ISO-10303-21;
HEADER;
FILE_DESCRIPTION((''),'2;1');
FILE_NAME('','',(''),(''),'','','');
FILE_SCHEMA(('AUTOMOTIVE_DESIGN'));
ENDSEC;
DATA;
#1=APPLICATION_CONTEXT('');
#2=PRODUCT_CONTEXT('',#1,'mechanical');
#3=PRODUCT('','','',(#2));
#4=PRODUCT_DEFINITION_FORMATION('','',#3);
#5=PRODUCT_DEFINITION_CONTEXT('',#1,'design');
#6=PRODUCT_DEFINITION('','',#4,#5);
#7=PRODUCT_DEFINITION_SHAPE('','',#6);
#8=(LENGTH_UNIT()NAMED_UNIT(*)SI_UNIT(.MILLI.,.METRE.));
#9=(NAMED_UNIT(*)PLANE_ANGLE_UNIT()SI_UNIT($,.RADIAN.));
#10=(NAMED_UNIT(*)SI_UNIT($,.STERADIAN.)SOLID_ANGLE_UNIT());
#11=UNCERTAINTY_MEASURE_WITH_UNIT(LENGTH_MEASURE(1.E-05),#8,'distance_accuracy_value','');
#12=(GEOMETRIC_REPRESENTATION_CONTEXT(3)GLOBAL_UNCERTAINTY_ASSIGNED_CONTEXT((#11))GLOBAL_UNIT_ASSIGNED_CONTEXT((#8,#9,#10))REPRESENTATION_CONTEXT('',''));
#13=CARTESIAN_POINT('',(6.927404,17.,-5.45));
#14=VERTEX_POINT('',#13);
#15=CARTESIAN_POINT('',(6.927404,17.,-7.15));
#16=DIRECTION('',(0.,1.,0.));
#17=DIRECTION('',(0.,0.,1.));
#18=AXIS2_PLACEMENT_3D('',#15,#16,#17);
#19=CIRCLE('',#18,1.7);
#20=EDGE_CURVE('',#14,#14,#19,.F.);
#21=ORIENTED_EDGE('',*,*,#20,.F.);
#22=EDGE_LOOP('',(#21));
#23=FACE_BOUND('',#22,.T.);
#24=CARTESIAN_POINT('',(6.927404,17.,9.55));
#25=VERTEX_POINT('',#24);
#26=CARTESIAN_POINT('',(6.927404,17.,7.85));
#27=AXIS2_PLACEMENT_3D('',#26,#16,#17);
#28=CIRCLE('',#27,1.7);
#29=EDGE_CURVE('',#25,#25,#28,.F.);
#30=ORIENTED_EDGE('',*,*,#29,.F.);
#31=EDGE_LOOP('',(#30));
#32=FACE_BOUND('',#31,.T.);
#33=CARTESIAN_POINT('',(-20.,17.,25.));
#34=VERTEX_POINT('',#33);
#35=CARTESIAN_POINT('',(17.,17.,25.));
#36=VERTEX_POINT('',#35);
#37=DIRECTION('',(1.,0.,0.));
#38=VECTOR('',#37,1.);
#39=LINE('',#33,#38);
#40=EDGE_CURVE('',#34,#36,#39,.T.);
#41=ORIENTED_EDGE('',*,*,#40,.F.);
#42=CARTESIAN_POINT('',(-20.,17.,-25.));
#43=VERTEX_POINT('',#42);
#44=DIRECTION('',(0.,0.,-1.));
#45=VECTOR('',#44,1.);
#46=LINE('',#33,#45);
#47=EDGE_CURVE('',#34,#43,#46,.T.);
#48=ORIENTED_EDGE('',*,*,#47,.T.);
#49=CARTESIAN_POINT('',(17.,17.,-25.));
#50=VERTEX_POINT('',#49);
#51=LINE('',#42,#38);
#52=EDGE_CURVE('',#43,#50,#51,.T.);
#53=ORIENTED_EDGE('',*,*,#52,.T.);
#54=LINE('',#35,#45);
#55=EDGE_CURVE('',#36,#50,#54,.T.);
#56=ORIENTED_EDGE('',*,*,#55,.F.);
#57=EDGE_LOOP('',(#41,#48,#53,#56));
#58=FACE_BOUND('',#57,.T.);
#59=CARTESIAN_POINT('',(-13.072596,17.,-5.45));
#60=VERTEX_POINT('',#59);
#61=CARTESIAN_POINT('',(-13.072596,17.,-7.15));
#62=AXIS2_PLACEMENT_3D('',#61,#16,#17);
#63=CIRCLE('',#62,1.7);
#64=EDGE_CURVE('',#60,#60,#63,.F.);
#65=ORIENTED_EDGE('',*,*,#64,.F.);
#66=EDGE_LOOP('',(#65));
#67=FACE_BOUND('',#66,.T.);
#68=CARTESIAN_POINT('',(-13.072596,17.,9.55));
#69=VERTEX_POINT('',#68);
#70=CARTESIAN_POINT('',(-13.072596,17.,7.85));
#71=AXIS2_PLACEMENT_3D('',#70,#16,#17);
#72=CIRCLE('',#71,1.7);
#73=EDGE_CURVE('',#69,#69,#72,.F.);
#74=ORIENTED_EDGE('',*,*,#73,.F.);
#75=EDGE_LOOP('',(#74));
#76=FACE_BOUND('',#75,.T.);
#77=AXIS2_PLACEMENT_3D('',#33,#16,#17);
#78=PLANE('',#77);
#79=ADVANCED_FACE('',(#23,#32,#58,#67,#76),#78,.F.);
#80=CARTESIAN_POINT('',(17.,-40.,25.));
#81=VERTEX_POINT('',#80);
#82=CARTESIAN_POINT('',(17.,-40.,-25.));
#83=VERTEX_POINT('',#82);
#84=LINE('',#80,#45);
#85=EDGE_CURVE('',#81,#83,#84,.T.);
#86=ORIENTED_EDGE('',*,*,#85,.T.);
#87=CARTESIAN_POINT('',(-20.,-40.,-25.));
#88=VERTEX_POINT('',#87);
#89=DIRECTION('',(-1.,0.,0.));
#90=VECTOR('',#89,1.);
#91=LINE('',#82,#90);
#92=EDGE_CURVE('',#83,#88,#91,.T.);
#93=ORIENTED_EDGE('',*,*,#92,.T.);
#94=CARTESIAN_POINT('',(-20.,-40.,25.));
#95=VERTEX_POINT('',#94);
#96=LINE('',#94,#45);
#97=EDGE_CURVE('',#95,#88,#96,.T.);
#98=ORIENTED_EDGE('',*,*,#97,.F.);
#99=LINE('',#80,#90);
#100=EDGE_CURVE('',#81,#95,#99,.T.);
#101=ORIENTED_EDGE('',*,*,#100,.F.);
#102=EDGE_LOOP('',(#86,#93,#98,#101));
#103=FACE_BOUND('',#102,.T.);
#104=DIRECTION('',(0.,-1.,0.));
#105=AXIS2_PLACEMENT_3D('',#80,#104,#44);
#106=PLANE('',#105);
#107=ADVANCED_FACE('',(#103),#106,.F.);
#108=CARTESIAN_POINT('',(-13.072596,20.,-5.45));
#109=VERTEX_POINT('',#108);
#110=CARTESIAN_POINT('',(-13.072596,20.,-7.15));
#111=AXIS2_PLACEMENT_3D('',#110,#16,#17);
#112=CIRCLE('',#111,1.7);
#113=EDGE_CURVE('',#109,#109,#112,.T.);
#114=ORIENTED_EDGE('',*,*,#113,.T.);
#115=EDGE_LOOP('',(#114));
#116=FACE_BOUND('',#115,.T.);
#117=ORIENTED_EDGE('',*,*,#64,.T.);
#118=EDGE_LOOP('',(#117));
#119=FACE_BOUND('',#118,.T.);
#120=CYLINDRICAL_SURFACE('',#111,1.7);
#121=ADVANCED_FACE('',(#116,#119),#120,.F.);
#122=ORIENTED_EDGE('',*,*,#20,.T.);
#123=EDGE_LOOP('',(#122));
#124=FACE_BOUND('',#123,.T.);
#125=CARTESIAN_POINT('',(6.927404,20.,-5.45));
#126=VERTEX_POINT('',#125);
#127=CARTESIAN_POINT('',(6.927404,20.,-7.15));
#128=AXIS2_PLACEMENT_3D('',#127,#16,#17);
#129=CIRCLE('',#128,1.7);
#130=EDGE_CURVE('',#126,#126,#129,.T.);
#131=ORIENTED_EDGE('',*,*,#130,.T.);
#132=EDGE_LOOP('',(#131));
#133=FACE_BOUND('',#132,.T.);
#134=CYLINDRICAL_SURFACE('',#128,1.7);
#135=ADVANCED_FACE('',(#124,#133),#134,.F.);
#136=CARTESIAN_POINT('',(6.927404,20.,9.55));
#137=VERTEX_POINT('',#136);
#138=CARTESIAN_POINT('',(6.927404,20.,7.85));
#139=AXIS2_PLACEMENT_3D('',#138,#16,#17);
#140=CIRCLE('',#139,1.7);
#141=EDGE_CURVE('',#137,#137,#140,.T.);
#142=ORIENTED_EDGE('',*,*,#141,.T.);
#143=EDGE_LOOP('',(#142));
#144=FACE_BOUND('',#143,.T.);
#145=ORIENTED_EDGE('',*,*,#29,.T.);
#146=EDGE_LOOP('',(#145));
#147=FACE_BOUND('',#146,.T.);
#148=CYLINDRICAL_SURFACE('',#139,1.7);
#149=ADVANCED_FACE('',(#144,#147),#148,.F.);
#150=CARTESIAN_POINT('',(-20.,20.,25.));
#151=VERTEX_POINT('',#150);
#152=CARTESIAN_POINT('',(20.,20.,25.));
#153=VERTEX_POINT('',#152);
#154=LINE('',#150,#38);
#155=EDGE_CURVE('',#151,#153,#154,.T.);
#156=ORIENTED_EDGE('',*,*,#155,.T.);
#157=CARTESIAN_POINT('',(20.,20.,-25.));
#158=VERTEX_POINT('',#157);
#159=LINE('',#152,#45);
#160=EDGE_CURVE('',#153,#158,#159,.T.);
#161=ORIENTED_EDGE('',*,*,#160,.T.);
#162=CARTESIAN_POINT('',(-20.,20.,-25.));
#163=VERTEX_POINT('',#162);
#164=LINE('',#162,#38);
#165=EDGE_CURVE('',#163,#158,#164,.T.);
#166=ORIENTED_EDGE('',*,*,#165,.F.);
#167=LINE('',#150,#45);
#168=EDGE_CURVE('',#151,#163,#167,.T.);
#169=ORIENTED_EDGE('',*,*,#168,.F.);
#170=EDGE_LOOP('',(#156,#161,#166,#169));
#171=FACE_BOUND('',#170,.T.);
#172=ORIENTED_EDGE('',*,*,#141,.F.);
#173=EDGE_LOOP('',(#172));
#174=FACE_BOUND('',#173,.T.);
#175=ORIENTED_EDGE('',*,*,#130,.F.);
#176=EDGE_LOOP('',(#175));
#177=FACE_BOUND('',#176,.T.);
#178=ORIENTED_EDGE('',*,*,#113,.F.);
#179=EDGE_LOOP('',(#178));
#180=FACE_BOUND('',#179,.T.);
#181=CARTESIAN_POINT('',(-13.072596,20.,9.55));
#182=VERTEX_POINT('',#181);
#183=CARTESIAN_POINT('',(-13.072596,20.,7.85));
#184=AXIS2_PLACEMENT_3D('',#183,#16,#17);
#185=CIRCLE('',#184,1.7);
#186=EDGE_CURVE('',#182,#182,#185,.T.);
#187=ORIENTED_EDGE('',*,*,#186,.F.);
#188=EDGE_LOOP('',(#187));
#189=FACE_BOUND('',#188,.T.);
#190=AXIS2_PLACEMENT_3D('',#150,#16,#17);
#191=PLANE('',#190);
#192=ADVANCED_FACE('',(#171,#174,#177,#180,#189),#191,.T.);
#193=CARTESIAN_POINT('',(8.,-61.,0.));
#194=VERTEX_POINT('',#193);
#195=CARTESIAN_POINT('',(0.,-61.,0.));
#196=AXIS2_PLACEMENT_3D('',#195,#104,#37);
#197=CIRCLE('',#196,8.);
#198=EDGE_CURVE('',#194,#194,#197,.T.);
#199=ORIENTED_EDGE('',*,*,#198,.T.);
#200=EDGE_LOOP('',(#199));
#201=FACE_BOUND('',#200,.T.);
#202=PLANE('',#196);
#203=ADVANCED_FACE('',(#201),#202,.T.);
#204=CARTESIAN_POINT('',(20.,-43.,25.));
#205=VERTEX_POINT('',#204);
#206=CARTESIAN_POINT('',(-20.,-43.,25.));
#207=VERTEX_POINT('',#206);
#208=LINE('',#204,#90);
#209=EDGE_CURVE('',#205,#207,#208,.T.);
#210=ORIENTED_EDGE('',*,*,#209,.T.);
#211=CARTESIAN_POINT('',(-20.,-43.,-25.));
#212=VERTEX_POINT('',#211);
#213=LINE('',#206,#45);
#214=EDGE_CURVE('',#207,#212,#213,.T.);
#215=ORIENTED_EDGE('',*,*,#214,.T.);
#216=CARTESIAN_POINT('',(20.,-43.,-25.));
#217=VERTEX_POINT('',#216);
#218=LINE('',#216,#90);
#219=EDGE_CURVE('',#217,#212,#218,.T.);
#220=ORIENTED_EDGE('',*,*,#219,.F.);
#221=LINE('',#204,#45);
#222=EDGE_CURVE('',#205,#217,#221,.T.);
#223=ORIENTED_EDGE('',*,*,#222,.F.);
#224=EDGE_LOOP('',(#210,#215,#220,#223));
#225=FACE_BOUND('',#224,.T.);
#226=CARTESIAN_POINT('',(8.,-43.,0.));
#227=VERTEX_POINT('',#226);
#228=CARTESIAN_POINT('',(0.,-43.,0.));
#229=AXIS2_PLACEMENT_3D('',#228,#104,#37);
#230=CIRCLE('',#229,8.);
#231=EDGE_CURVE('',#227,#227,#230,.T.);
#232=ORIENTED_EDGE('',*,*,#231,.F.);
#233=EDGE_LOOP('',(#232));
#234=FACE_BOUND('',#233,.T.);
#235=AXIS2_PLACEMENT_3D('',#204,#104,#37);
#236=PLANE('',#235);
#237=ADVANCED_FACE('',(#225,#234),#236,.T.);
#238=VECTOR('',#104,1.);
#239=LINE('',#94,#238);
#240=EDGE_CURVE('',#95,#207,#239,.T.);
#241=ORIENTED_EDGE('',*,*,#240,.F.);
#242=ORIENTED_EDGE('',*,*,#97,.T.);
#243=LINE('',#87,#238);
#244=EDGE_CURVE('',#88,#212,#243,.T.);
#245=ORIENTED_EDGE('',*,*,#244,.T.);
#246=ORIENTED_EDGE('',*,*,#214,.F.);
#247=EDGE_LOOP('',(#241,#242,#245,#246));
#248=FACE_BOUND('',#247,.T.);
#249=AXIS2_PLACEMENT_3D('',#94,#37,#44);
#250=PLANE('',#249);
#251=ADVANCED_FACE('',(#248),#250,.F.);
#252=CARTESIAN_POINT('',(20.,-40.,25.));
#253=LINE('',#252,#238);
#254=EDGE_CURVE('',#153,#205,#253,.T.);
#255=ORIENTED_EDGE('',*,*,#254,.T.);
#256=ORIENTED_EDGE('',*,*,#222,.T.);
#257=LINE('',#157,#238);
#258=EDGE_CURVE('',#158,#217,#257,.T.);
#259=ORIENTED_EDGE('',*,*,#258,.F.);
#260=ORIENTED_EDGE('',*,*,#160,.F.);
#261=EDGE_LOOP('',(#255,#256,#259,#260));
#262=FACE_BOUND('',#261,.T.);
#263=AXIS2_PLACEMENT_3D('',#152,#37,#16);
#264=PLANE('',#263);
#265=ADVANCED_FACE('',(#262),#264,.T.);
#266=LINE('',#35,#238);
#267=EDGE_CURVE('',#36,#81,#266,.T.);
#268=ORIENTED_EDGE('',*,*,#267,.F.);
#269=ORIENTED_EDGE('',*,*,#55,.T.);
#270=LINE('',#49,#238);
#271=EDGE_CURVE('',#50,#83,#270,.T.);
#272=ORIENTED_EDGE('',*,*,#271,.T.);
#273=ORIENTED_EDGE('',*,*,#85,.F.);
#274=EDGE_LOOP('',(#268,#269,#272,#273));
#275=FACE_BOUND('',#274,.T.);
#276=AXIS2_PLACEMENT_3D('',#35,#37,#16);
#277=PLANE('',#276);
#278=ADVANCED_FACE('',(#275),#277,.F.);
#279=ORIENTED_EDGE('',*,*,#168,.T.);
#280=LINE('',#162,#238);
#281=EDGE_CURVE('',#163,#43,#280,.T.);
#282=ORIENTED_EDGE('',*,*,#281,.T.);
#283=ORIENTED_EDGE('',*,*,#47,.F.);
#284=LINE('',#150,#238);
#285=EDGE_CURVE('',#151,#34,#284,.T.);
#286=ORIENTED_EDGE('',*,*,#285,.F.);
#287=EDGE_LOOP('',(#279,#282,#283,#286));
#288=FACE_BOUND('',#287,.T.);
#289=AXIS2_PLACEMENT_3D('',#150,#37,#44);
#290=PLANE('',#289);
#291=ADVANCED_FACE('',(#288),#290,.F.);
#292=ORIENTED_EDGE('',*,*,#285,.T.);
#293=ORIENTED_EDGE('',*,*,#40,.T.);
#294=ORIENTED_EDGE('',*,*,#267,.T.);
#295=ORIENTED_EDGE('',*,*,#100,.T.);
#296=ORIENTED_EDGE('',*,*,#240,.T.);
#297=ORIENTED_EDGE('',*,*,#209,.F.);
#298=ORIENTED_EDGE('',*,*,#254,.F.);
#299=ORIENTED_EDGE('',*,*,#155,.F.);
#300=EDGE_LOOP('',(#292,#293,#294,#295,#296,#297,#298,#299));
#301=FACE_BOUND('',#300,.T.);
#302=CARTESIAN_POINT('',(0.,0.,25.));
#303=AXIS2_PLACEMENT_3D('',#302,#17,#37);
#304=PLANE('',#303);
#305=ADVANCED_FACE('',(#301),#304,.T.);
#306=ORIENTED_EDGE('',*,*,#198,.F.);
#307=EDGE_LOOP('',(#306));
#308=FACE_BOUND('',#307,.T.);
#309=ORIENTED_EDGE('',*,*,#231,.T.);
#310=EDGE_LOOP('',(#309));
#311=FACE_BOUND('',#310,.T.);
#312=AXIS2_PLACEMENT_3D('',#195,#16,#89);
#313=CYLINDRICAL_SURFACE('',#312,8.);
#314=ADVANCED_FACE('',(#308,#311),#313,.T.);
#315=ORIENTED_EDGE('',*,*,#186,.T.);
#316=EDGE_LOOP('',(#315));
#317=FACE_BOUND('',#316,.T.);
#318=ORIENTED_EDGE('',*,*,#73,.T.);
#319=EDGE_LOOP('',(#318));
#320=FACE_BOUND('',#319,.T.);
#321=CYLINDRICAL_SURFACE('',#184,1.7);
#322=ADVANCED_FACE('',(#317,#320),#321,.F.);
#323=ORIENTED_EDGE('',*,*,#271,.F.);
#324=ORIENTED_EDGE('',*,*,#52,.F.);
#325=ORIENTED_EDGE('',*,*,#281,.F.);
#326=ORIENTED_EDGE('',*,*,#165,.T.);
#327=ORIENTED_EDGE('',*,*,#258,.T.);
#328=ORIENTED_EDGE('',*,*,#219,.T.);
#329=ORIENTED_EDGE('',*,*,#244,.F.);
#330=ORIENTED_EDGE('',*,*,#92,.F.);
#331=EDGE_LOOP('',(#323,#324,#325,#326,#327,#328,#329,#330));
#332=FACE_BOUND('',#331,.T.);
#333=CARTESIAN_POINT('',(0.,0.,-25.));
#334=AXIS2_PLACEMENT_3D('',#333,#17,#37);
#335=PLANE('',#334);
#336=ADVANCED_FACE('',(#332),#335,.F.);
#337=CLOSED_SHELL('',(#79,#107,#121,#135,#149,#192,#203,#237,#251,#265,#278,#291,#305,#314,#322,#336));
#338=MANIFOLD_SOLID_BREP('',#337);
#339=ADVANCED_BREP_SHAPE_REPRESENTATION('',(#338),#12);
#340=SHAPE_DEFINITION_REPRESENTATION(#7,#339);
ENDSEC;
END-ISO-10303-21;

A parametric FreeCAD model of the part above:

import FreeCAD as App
import Part
import Sketcher
Q = App.Units.Quantity

doc = App.newDocument("Part")
params = doc.addObject("Spreadsheet::Sheet", "Params")
for row, (alias, value) in enumerate([
    ("sketch1_width", "40 mm"),
    ("sketch1_width2", "37 mm"),
    ("sketch1_height", "3 mm"),
    ("sketch1_height2", "57 mm"),
    ("pad1_length", "50 mm"),
    ("sketch2_diameter", "16 mm"),
    ("pad2_length", "18 mm"),
    ("sketch3_diameter", "3.4 mm"),
    ("sketch4_diameter", "3.4 mm"),
    ("sketch5_diameter", "3.4 mm"),
    ("sketch6_diameter", "3.4 mm"),
], start=1):
    params.set(f"A{row}", alias)
    params.set(f"B{row}", "=" + value)
    params.setAlias(f"B{row}", alias)

body = doc.addObject("PartDesign::Body", "Body")

# Sketch on XY plane
sketch1 = doc.addObject("Sketcher::SketchObject", "Sketch")
body.addObject(sketch1)
sketch1.AttachmentSupport = (doc.XY_Plane, [""])
sketch1.MapMode = "FlatFace"
sketch1.addGeometry([
    Part.LineSegment(App.Vector(20, 20, 0), App.Vector(-20, 20, 0)),  # 0
    Part.LineSegment(App.Vector(-20, 20, 0), App.Vector(-20, 17, 0)),  # 1
    Part.LineSegment(App.Vector(-20, 17, 0), App.Vector(17, 17, 0)),  # 2
    Part.LineSegment(App.Vector(17, 17, 0), App.Vector(17, -40, 0)),  # 3
    Part.LineSegment(App.Vector(17, -40, 0), App.Vector(-20, -40, 0)),  # 4
    Part.LineSegment(App.Vector(-20, -40, 0), App.Vector(-20, -43, 0)),  # 5
    Part.LineSegment(App.Vector(-20, -43, 0), App.Vector(20, -43, 0)),  # 6
    Part.LineSegment(App.Vector(20, -43, 0), App.Vector(20, 20, 0)),  # 7
], False)
sketch1.addConstraint([
    Sketcher.Constraint("Coincident", 0, 2, 1, 1),
    Sketcher.Constraint("Coincident", 1, 2, 2, 1),
    Sketcher.Constraint("Coincident", 2, 2, 3, 1),
    Sketcher.Constraint("Coincident", 3, 2, 4, 1),
    Sketcher.Constraint("Coincident", 4, 2, 5, 1),
    Sketcher.Constraint("Coincident", 5, 2, 6, 1),
    Sketcher.Constraint("Coincident", 6, 2, 7, 1),
    Sketcher.Constraint("Coincident", 7, 2, 0, 1),
    Sketcher.Constraint("Horizontal", 0),
    Sketcher.Constraint("Vertical", 1),
    Sketcher.Constraint("Horizontal", 2),
    Sketcher.Constraint("Vertical", 3),
    Sketcher.Constraint("Horizontal", 4),
    Sketcher.Constraint("Vertical", 5),
    Sketcher.Constraint("Horizontal", 6),
    Sketcher.Constraint("Vertical", 7),
    Sketcher.Constraint("Vertical", 1, 2, 4, 2),
    Sketcher.Constraint("Equal", 1, 5),
    Sketcher.Constraint("DistanceX", 0, 2, 0, 1, Q("40 mm")),
    Sketcher.Constraint("DistanceX", 2, 1, 2, 2, Q("37 mm")),
    Sketcher.Constraint("DistanceY", 1, 2, 1, 1, Q("3 mm")),
    Sketcher.Constraint("DistanceY", 3, 2, 3, 1, Q("57 mm")),
    Sketcher.Constraint("DistanceX", 0, 2, -1, 1, Q("20 mm")),
    Sketcher.Constraint("DistanceY", -1, 1, 0, 2, Q("20 mm")),
])
sketch1.setExpression("Constraints[18]", "Params.sketch1_width")
sketch1.setExpression("Constraints[19]", "Params.sketch1_width2")
sketch1.setExpression("Constraints[20]", "Params.sketch1_height")
sketch1.setExpression("Constraints[21]", "Params.sketch1_height2")
pad1 = doc.addObject("PartDesign::Pad", "Pad")
body.addObject(pad1)
pad1.Profile = sketch1
pad1.setExpression("Length", "Params.pad1_length")
pad1.Midplane = True

# Sketch on XZ plane
sketch2 = doc.addObject("Sketcher::SketchObject", "Sketch001")
body.addObject(sketch2)
sketch2.AttachmentSupport = (doc.XZ_Plane, [""])
sketch2.MapMode = "FlatFace"
sketch2.AttachmentOffset = App.Placement(App.Vector(0, 0, 43), App.Rotation())
sketch2.addGeometry(Part.Circle(App.Vector(0, 0, 0), App.Vector(0, 0, 1), 8), False)
sketch2.addConstraint([
    Sketcher.Constraint("Coincident", 0, 3, -1, 1),
    Sketcher.Constraint("Diameter", 0, Q("16 mm")),
])
sketch2.setExpression("Constraints[1]", "Params.sketch2_diameter")
pad2 = doc.addObject("PartDesign::Pad", "Pad001")
body.addObject(pad2)
pad2.Profile = sketch2
pad2.setExpression("Length", "Params.pad2_length")

# Sketch on XZ plane
sketch3 = doc.addObject("Sketcher::SketchObject", "Sketch002")
body.addObject(sketch3)
sketch3.AttachmentSupport = (doc.XZ_Plane, [""])
sketch3.MapMode = "FlatFace"
sketch3.AttachmentOffset = App.Placement(App.Vector(0, 0, -20), App.Rotation())
sketch3.addGeometry(Part.Circle(App.Vector(-13.072596, 7.85, 0), App.Vector(0, 0, 1), 1.7), False)
sketch3.addConstraint([
    Sketcher.Constraint("Diameter", 0, Q("3.4 mm")),
    Sketcher.Constraint("DistanceY", -1, 1, 0, 3, Q("7.85 mm")),
    Sketcher.Constraint("DistanceX", 0, 3, -1, 1, Q("13.072596 mm")),
])
sketch3.setExpression("Constraints[0]", "Params.sketch3_diameter")
pocket1 = doc.addObject("PartDesign::Pocket", "Pocket")
body.addObject(pocket1)
pocket1.Profile = sketch3
pocket1.Type = "UpToFirst"
pocket1.Reversed = True

# Sketch on XZ plane
sketch4 = doc.addObject("Sketcher::SketchObject", "Sketch003")
body.addObject(sketch4)
sketch4.AttachmentSupport = (doc.XZ_Plane, [""])
sketch4.MapMode = "FlatFace"
sketch4.AttachmentOffset = App.Placement(App.Vector(0, 0, -20), App.Rotation())
sketch4.addGeometry(Part.Circle(App.Vector(-13.072596, -7.15, 0), App.Vector(0, 0, 1), 1.7), False)
sketch4.addConstraint([
    Sketcher.Constraint("Diameter", 0, Q("3.4 mm")),
    Sketcher.Constraint("DistanceY", 0, 3, -1, 1, Q("7.15 mm")),
    Sketcher.Constraint("DistanceX", 0, 3, -1, 1, Q("13.072596 mm")),
])
sketch4.setExpression("Constraints[0]", "Params.sketch4_diameter")
pocket2 = doc.addObject("PartDesign::Pocket", "Pocket001")
body.addObject(pocket2)
pocket2.Profile = sketch4
pocket2.Type = "UpToFirst"
pocket2.Reversed = True

# Sketch on XZ plane
sketch5 = doc.addObject("Sketcher::SketchObject", "Sketch004")
body.addObject(sketch5)
sketch5.AttachmentSupport = (doc.XZ_Plane, [""])
sketch5.MapMode = "FlatFace"
sketch5.AttachmentOffset = App.Placement(App.Vector(0, 0, -20), App.Rotation())
sketch5.addGeometry(Part.Circle(App.Vector(6.927404, 7.85, 0), App.Vector(0, 0, 1), 1.7), False)
sketch5.addConstraint([
    Sketcher.Constraint("Diameter", 0, Q("3.4 mm")),
    Sketcher.Constraint("DistanceY", -1, 1, 0, 3, Q("7.85 mm")),
    Sketcher.Constraint("DistanceX", -1, 1, 0, 3, Q("6.927404 mm")),
])
sketch5.setExpression("Constraints[0]", "Params.sketch5_diameter")
pocket3 = doc.addObject("PartDesign::Pocket", "Pocket002")
body.addObject(pocket3)
pocket3.Profile = sketch5
pocket3.Type = "UpToFirst"
pocket3.Reversed = True

# Sketch on XZ plane
sketch6 = doc.addObject("Sketcher::SketchObject", "Sketch005")
body.addObject(sketch6)
sketch6.AttachmentSupport = (doc.XZ_Plane, [""])
sketch6.MapMode = "FlatFace"
sketch6.AttachmentOffset = App.Placement(App.Vector(0, 0, -20), App.Rotation())
sketch6.addGeometry(Part.Circle(App.Vector(6.927404, -7.15, 0), App.Vector(0, 0, 1), 1.7), False)
sketch6.addConstraint([
    Sketcher.Constraint("Diameter", 0, Q("3.4 mm")),
    Sketcher.Constraint("DistanceY", 0, 3, -1, 1, Q("7.15 mm")),
    Sketcher.Constraint("DistanceX", -1, 1, 0, 3, Q("6.927404 mm")),
])
sketch6.setExpression("Constraints[0]", "Params.sketch6_diameter")
pocket4 = doc.addObject("PartDesign::Pocket", "Pocket003")
body.addObject(pocket4)
pocket4.Profile = sketch6
pocket4.Type = "UpToFirst"
pocket4.Reversed = True

doc.recompute()
